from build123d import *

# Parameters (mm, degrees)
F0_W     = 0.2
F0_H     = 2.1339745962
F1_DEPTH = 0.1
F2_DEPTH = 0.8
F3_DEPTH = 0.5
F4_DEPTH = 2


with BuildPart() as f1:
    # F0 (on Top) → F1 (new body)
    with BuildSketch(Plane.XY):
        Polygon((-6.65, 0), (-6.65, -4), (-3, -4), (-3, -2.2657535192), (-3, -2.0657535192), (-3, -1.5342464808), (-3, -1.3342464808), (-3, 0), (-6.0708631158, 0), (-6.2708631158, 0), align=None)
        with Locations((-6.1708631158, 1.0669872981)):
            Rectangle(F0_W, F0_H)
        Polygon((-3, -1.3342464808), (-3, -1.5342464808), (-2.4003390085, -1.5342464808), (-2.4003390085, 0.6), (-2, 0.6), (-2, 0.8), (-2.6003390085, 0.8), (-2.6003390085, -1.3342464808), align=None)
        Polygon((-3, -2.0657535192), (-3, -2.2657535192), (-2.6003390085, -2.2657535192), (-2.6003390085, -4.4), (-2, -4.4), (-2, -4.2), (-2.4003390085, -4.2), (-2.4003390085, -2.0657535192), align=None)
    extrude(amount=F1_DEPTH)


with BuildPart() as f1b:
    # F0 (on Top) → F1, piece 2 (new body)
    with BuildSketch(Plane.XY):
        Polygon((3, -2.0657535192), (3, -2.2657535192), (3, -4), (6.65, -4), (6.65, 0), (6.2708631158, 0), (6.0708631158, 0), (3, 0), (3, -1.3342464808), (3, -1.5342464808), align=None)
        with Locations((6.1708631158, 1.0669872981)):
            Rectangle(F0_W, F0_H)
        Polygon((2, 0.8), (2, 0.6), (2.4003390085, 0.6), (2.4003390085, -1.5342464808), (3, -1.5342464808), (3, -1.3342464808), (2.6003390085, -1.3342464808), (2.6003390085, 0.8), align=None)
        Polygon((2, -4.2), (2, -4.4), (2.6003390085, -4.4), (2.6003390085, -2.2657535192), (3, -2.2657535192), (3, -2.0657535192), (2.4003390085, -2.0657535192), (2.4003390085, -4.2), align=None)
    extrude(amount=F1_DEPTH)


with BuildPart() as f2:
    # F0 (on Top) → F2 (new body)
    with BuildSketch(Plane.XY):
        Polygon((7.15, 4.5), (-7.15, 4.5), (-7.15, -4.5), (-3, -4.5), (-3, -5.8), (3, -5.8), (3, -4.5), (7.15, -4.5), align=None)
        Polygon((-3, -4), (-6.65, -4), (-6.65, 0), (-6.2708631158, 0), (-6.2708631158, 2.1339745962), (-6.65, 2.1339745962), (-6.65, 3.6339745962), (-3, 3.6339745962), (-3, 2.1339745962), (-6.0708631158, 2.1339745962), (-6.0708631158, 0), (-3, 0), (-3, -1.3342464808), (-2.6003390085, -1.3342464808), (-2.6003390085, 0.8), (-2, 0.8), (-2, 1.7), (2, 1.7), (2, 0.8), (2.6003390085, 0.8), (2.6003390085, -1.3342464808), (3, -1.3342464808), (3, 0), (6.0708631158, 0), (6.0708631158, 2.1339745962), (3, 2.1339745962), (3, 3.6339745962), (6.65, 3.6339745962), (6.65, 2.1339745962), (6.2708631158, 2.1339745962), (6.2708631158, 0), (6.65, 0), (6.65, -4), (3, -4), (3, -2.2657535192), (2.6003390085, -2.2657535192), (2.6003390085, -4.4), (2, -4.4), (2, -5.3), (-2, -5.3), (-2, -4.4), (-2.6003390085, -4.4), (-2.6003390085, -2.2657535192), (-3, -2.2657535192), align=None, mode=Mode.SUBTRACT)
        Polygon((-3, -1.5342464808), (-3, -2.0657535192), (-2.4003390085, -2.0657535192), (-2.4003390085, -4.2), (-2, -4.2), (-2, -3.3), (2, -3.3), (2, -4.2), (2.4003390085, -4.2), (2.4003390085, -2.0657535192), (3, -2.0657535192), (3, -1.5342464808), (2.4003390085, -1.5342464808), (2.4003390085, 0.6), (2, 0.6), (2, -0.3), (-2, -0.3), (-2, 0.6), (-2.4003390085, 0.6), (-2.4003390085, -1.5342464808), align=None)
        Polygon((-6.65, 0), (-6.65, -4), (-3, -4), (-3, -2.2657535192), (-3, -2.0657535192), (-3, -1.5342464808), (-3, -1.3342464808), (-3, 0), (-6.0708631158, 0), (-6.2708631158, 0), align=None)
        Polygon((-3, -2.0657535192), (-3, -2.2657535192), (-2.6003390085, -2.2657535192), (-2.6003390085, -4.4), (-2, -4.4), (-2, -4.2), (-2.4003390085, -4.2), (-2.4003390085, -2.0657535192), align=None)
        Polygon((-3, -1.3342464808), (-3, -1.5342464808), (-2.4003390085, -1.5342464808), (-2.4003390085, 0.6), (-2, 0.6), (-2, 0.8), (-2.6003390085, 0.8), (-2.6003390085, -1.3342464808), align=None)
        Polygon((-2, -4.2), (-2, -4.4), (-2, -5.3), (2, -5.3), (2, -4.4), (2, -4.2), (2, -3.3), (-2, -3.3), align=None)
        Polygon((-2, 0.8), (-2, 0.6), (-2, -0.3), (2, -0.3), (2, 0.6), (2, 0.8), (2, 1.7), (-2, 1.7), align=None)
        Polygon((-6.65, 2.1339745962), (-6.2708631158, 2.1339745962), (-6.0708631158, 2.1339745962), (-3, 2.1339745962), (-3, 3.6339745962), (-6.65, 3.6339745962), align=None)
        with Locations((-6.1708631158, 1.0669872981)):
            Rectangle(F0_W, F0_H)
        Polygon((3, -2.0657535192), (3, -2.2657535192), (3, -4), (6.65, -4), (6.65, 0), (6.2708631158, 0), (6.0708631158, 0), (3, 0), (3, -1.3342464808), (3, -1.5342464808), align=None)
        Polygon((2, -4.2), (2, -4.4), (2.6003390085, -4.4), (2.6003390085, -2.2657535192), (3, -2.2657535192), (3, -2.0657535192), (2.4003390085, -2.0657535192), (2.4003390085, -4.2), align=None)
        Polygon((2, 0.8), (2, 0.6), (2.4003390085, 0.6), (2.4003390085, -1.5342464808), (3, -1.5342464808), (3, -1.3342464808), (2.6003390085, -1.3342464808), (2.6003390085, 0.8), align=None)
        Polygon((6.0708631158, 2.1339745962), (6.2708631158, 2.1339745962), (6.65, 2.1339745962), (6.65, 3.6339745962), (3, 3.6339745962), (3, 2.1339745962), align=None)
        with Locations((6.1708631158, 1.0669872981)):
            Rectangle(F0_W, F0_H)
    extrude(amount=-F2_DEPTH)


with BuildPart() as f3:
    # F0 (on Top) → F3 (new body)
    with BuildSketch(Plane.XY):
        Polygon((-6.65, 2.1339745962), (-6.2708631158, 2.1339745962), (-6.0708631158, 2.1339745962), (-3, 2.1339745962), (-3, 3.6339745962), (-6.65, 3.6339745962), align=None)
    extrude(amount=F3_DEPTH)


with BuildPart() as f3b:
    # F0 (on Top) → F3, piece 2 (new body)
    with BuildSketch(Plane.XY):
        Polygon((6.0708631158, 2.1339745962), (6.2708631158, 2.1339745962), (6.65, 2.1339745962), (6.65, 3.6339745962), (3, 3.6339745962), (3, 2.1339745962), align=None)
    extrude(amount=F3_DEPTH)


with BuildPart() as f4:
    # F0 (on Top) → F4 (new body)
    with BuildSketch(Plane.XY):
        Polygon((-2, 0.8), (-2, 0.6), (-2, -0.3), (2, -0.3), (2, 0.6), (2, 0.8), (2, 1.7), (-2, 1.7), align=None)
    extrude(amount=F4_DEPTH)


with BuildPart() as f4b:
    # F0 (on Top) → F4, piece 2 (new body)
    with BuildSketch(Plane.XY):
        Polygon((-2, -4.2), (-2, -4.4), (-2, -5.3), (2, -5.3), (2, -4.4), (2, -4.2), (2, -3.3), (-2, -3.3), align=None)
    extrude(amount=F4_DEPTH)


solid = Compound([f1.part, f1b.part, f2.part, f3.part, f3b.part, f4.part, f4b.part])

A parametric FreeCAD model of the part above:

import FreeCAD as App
import Part
import Sketcher

doc = App.newDocument("Part")
body = doc.addObject("PartDesign::Body", "Body")

sketch1 = body.newObject("Sketcher::SketchObject", "Sketch")
sketch1.AttachmentSupport = (doc.getObject("XY_Plane"), [""])
sketch1.MapMode = "FlatFace"
sketch1.addGeometry([
    Part.LineSegment(App.Vector(-6.65, 0, 0), App.Vector(-6.65, -4, 0)),
    Part.LineSegment(App.Vector(-6.65, -4, 0), App.Vector(-3, -4, 0)),
    Part.LineSegment(App.Vector(-3, -4, 0), App.Vector(-3, -2.27, 0)),
    Part.LineSegment(App.Vector(-3, -2.27, 0), App.Vector(-2.6, -2.27, 0)),
    Part.LineSegment(App.Vector(-2.6, -2.27, 0), App.Vector(-2.6, -4.4, 0)),
    Part.LineSegment(App.Vector(-2.6, -4.4, 0), App.Vector(-2, -4.4, 0)),
    Part.LineSegment(App.Vector(-2, -4.4, 0), App.Vector(-2, -4.2, 0)),
    Part.LineSegment(App.Vector(-2, -4.2, 0), App.Vector(-2.4, -4.2, 0)),
    Part.LineSegment(App.Vector(-2.4, -4.2, 0), App.Vector(-2.4, -2.07, 0)),
    Part.LineSegment(App.Vector(-2.4, -2.07, 0), App.Vector(-3, -2.07, 0)),
    Part.LineSegment(App.Vector(-3, -2.07, 0), App.Vector(-3, -1.53, 0)),
    Part.LineSegment(App.Vector(-3, -1.53, 0), App.Vector(-2.4, -1.53, 0)),
    Part.LineSegment(App.Vector(-2.4, -1.53, 0), App.Vector(-2.4, 0.6, 0)),
    Part.LineSegment(App.Vector(-2.4, 0.6, 0), App.Vector(-2, 0.6, 0)),
    Part.LineSegment(App.Vector(-2, 0.6, 0), App.Vector(-2, 0.8, 0)),
    Part.LineSegment(App.Vector(-2, 0.8, 0), App.Vector(-2.6, 0.8, 0)),
    Part.LineSegment(App.Vector(-2.6, 0.8, 0), App.Vector(-2.6, -1.33, 0)),
    Part.LineSegment(App.Vector(-2.6, -1.33, 0), App.Vector(-3, -1.33, 0)),
    Part.LineSegment(App.Vector(-3, -1.33, 0), App.Vector(-3, 0, 0)),
    Part.LineSegment(App.Vector(-3, 0, 0), App.Vector(-6.07, 0, 0)),
    Part.LineSegment(App.Vector(-6.07, 0, 0), App.Vector(-6.07, 2.13, 0)),
    Part.LineSegment(App.Vector(-6.07, 2.13, 0), App.Vector(-6.27, 2.13, 0)),
    Part.LineSegment(App.Vector(-6.27, 2.13, 0), App.Vector(-6.27, 0, 0)),
    Part.LineSegment(App.Vector(-6.27, 0, 0), App.Vector(-6.65, 0, 0)),
], False)
sketch1.addConstraint([
    Sketcher.Constraint("Coincident", 0, 2, 1, 1),
    Sketcher.Constraint("Coincident", 1, 2, 2, 1),
    Sketcher.Constraint("Coincident", 2, 2, 3, 1),
    Sketcher.Constraint("Coincident", 3, 2, 4, 1),
    Sketcher.Constraint("Coincident", 4, 2, 5, 1),
    Sketcher.Constraint("Coincident", 5, 2, 6, 1),
    Sketcher.Constraint("Coincident", 6, 2, 7, 1),
    Sketcher.Constraint("Coincident", 7, 2, 8, 1),
    Sketcher.Constraint("Coincident", 8, 2, 9, 1),
    Sketcher.Constraint("Coincident", 9, 2, 10, 1),
    Sketcher.Constraint("Coincident", 10, 2, 11, 1),
    Sketcher.Constraint("Coincident", 11, 2, 12, 1),
    Sketcher.Constraint("Coincident", 12, 2, 13, 1),
    Sketcher.Constraint("Coincident", 13, 2, 14, 1),
    Sketcher.Constraint("Coincident", 14, 2, 15, 1),
    Sketcher.Constraint("Coincident", 15, 2, 16, 1),
    Sketcher.Constraint("Coincident", 16, 2, 17, 1),
    Sketcher.Constraint("Coincident", 17, 2, 18, 1),
    Sketcher.Constraint("Coincident", 18, 2, 19, 1),
    Sketcher.Constraint("Coincident", 19, 2, 20, 1),
    Sketcher.Constraint("Coincident", 20, 2, 21, 1),
    Sketcher.Constraint("Coincident", 21, 2, 22, 1),
    Sketcher.Constraint("Coincident", 22, 2, 23, 1),
    Sketcher.Constraint("Coincident", 23, 2, 0, 1),
    Sketcher.Constraint("Vertical", 0),
    Sketcher.Constraint("Horizontal", 1),
    Sketcher.Constraint("Vertical", 2),
    Sketcher.Constraint("Horizontal", 3),
    Sketcher.Constraint("Vertical", 4),
    Sketcher.Constraint("Horizontal", 5),
    Sketcher.Constraint("Vertical", 6),
    Sketcher.Constraint("Horizontal", 7),
    Sketcher.Constraint("Vertical", 8),
    Sketcher.Constraint("Horizontal", 9),
    Sketcher.Constraint("Vertical", 10),
    Sketcher.Constraint("Horizontal", 11),
    Sketcher.Constraint("Vertical", 12),
    Sketcher.Constraint("Horizontal", 13),
    Sketcher.Constraint("Vertical", 14),
    Sketcher.Constraint("Horizontal", 15),
    Sketcher.Constraint("Vertical", 16),
    Sketcher.Constraint("Horizontal", 17),
    Sketcher.Constraint("Vertical", 18),
    Sketcher.Constraint("Horizontal", 19),
    Sketcher.Constraint("Vertical", 20),
    Sketcher.Constraint("Horizontal", 21),
    Sketcher.Constraint("Vertical", 22),
    Sketcher.Constraint("Horizontal", 23),
    Sketcher.Constraint("PointOnObject", 18, 2, -1),
    Sketcher.Constraint("PointOnObject", 22, 2, -1),
    Sketcher.Constraint("Vertical", 2, 2, 9, 2),
    Sketcher.Constraint("Vertical", 8, 2, 11, 2),
    Sketcher.Constraint("Vertical", 6, 2, 13, 2),
    Sketcher.Constraint("Vertical", 4, 2, 15, 2),
    Sketcher.Constraint("Vertical", 10, 2, 17, 2),
    Sketcher.Constraint("Equal", 21, 6),
    Sketcher.Constraint("Equal", 4, 8),
    Sketcher.Constraint("Equal", 8, 12),
    Sketcher.Constraint("Equal", 6, 14),
    Sketcher.Constraint("Equal", 12, 16),
    Sketcher.Constraint("DistanceY", 0, 2, 0, 1, 4.0),
    Sketcher.Constraint("DistanceX", 21, 2, 21, 1, 0.2),
    Sketcher.Constraint("DistanceX", 1, 2, -1, 1, 3.0),
    Sketcher.Constraint("DistanceX", 5, 2, -1, 1, 2.0),
    Sketcher.Constraint("DistanceX", 1, 1, 1, 2, 3.65),
    Sketcher.Constraint("DistanceY", 4, 2, -1, 1, 4.4),
    Sketcher.Constraint("DistanceY", -1, 1, 12, 2, 0.6),
    Sketcher.Constraint("DistanceX", 4, 2, 7, 2, 0.2),
    Sketcher.Constraint("DistanceX", 3, 1, 3, 2, 0.399661),
    Sketcher.Constraint("DistanceX", 19, 2, 19, 1, 3.070863),
    Sketcher.Constraint("DistanceY", 2, 1, 2, 2, 1.734246),
    Sketcher.Constraint("DistanceY", 20, 1, 20, 2, 2.133975),
])
pad1 = body.newObject("PartDesign::Pad", "Pad")
pad1.Profile = sketch1
pad1.Length = 0.1
body2 = doc.addObject("PartDesign::Body", "Body001")

sketch2 = body2.newObject("Sketcher::SketchObject", "Sketch001")
sketch2.AttachmentSupport = (doc.getObject("XY_Plane001"), [""])
sketch2.MapMode = "FlatFace"
sketch2.addGeometry([
    Part.LineSegment(App.Vector(3, -4, 0), App.Vector(6.65, -4, 0)),
    Part.LineSegment(App.Vector(6.65, -4, 0), App.Vector(6.65, 0, 0)),
    Part.LineSegment(App.Vector(6.65, 0, 0), App.Vector(6.27, 0, 0)),
    Part.LineSegment(App.Vector(6.27, 0, 0), App.Vector(6.27, 2.13, 0)),
    Part.LineSegment(App.Vector(6.27, 2.13, 0), App.Vector(6.07, 2.13, 0)),
    Part.LineSegment(App.Vector(6.07, 2.13, 0), App.Vector(6.07, 0, 0)),
    Part.LineSegment(App.Vector(6.07, 0, 0), App.Vector(3, 0, 0)),
    Part.LineSegment(App.Vector(3, 0, 0), App.Vector(3, -1.33, 0)),
    Part.LineSegment(App.Vector(3, -1.33, 0), App.Vector(2.6, -1.33, 0)),
    Part.LineSegment(App.Vector(2.6, -1.33, 0), App.Vector(2.6, 0.8, 0)),
    Part.LineSegment(App.Vector(2.6, 0.8, 0), App.Vector(2, 0.8, 0)),
    Part.LineSegment(App.Vector(2, 0.8, 0), App.Vector(2, 0.6, 0)),
    Part.LineSegment(App.Vector(2, 0.6, 0), App.Vector(2.4, 0.6, 0)),
    Part.LineSegment(App.Vector(2.4, 0.6, 0), App.Vector(2.4, -1.53, 0)),
    Part.LineSegment(App.Vector(2.4, -1.53, 0), App.Vector(3, -1.53, 0)),
    Part.LineSegment(App.Vector(3, -1.53, 0), App.Vector(3, -2.07, 0)),
    Part.LineSegment(App.Vector(3, -2.07, 0), App.Vector(2.4, -2.07, 0)),
    Part.LineSegment(App.Vector(2.4, -2.07, 0), App.Vector(2.4, -4.2, 0)),
    Part.LineSegment(App.Vector(2.4, -4.2, 0), App.Vector(2, -4.2, 0)),
    Part.LineSegment(App.Vector(2, -4.2, 0), App.Vector(2, -4.4, 0)),
    Part.LineSegment(App.Vector(2, -4.4, 0), App.Vector(2.6, -4.4, 0)),
    Part.LineSegment(App.Vector(2.6, -4.4, 0), App.Vector(2.6, -2.27, 0)),
    Part.LineSegment(App.Vector(2.6, -2.27, 0), App.Vector(3, -2.27, 0)),
    Part.LineSegment(App.Vector(3, -2.27, 0), App.Vector(3, -4, 0)),
], False)
sketch2.addConstraint([
    Sketcher.Constraint("Coincident", 0, 2, 1, 1),
    Sketcher.Constraint("Coincident", 1, 2, 2, 1),
    Sketcher.Constraint("Coincident", 2, 2, 3, 1),
    Sketcher.Constraint("Coincident", 3, 2, 4, 1),
    Sketcher.Constraint("Coincident", 4, 2, 5, 1),
    Sketcher.Constraint("Coincident", 5, 2, 6, 1),
    Sketcher.Constraint("Coincident", 6, 2, 7, 1),
    Sketcher.Constraint("Coincident", 7, 2, 8, 1),
    Sketcher.Constraint("Coincident", 8, 2, 9, 1),
    Sketcher.Constraint("Coincident", 9, 2, 10, 1),
    Sketcher.Constraint("Coincident", 10, 2, 11, 1),
    Sketcher.Constraint("Coincident", 11, 2, 12, 1),
    Sketcher.Constraint("Coincident", 12, 2, 13, 1),
    Sketcher.Constraint("Coincident", 13, 2, 14, 1),
    Sketcher.Constraint("Coincident", 14, 2, 15, 1),
    Sketcher.Constraint("Coincident", 15, 2, 16, 1),
    Sketcher.Constraint("Coincident", 16, 2, 17, 1),
    Sketcher.Constraint("Coincident", 17, 2, 18, 1),
    Sketcher.Constraint("Coincident", 18, 2, 19, 1),
    Sketcher.Constraint("Coincident", 19, 2, 20, 1),
    Sketcher.Constraint("Coincident", 20, 2, 21, 1),
    Sketcher.Constraint("Coincident", 21, 2, 22, 1),
    Sketcher.Constraint("Coincident", 22, 2, 23, 1),
    Sketcher.Constraint("Coincident", 23, 2, 0, 1),
    Sketcher.Constraint("Horizontal", 0),
    Sketcher.Constraint("Vertical", 1),
    Sketcher.Constraint("Horizontal", 2),
    Sketcher.Constraint("Vertical", 3),
    Sketcher.Constraint("Horizontal", 4),
    Sketcher.Constraint("Vertical", 5),
    Sketcher.Constraint("Horizontal", 6),
    Sketcher.Constraint("Vertical", 7),
    Sketcher.Constraint("Horizontal", 8),
    Sketcher.Constraint("Vertical", 9),
    Sketcher.Constraint("Horizontal", 10),
    Sketcher.Constraint("Vertical", 11),
    Sketcher.Constraint("Horizontal", 12),
    Sketcher.Constraint("Vertical", 13),
    Sketcher.Constraint("Horizontal", 14),
    Sketcher.Constraint("Vertical", 15),
    Sketcher.Constraint("Horizontal", 16),
    Sketcher.Constraint("Vertical", 17),
    Sketcher.Constraint("Horizontal", 18),
    Sketcher.Constraint("Vertical", 19),
    Sketcher.Constraint("Horizontal", 20),
    Sketcher.Constraint("Vertical", 21),
    Sketcher.Constraint("Horizontal", 22),
    Sketcher.Constraint("Vertical", 23),
    Sketcher.Constraint("PointOnObject", 1, 2, -1),
    Sketcher.Constraint("PointOnObject", 5, 2, -1),
    Sketcher.Constraint("Vertical", 7, 2, 14, 2),
    Sketcher.Constraint("Vertical", 13, 2, 16, 2),
    Sketcher.Constraint("Vertical", 11, 2, 18, 2),
    Sketcher.Constraint("Vertical", 9, 2, 20, 2),
    Sketcher.Constraint("Vertical", 15, 2, 22, 2),
    Sketcher.Constraint("Equal", 4, 11),
    Sketcher.Constraint("Equal", 9, 13),
    Sketcher.Constraint("Equal", 13, 17),
    Sketcher.Constraint("Equal", 11, 19),
    Sketcher.Constraint("Equal", 17, 21),
    Sketcher.Constraint("DistanceY", 1, 1, 1, 2, 4.0),
    Sketcher.Constraint("DistanceX", 4, 2, 4, 1, 0.2),
    Sketcher.Constraint("DistanceX", -1, 1, 6, 2, 3.0),
    Sketcher.Constraint("DistanceX", -1, 1, 10, 2, 2.0),
    Sketcher.Constraint("DistanceX", 0, 1, 0, 2, 3.65),
    Sketcher.Constraint("DistanceY", -1, 1, 9, 2, 0.8),
    Sketcher.Constraint("DistanceY", 17, 2, -1, 1, 4.2),
    Sketcher.Constraint("DistanceX", 12, 2, 9, 2, 0.2),
    Sketcher.Constraint("DistanceX", 8, 2, 8, 1, 0.399661),
    Sketcher.Constraint("DistanceX", 2, 2, 2, 1, 0.379137),
    Sketcher.Constraint("DistanceY", 3, 1, 3, 2, 2.133975),
    Sketcher.Constraint("DistanceY", 7, 2, 7, 1, 1.334246),
])
pad2 = body2.newObject("PartDesign::Pad", "Pad001")
pad2.Profile = sketch2
pad2.Length = 0.1
body3 = doc.addObject("PartDesign::Body", "Body002")

sketch3 = body3.newObject("Sketcher::SketchObject", "Sketch002")
sketch3.AttachmentSupport = (doc.getObject("XY_Plane002"), [""])
sketch3.MapMode = "FlatFace"
sketch3.addGeometry([
    Part.LineSegment(App.Vector(7.2, 4.5, 0), App.Vector(-7.2, 4.5, 0)),
    Part.LineSegment(App.Vector(-7.2, 4.5, 0), App.Vector(-7.2, -4.5, 0)),
    Part.LineSegment(App.Vector(-7.2, -4.5, 0), App.Vector(-3, -4.5, 0)),
    Part.LineSegment(App.Vector(-3, -4.5, 0), App.Vector(-3, -5.8, 0)),
    Part.LineSegment(App.Vector(-3, -5.8, 0), App.Vector(3, -5.8, 0)),
    Part.LineSegment(App.Vector(3, -5.8, 0), App.Vector(3, -4.5, 0)),
    Part.LineSegment(App.Vector(3, -4.5, 0), App.Vector(7.2, -4.5, 0)),
    Part.LineSegment(App.Vector(7.2, -4.5, 0), App.Vector(7.2, 4.5, 0)),
], False)
sketch3.addConstraint([
    Sketcher.Constraint("Coincident", 0, 2, 1, 1),
    Sketcher.Constraint("Coincident", 1, 2, 2, 1),
    Sketcher.Constraint("Coincident", 2, 2, 3, 1),
    Sketcher.Constraint("Coincident", 3, 2, 4, 1),
    Sketcher.Constraint("Coincident", 4, 2, 5, 1),
    Sketcher.Constraint("Coincident", 5, 2, 6, 1),
    Sketcher.Constraint("Coincident", 6, 2, 7, 1),
    Sketcher.Constraint("Coincident", 7, 2, 0, 1),
    Sketcher.Constraint("Horizontal", 0),
    Sketcher.Constraint("Vertical", 1),
    Sketcher.Constraint("Horizontal", 2),
    Sketcher.Constraint("Vertical", 3),
    Sketcher.Constraint("Horizontal", 4),
    Sketcher.Constraint("Vertical", 5),
    Sketcher.Constraint("Horizontal", 6),
    Sketcher.Constraint("Vertical", 7),
    Sketcher.Constraint("Symmetric", 0, 2, 6, 2, -1, 1),
    Sketcher.Constraint("Symmetric", 2, 2, 5, 2, -2),
    Sketcher.Constraint("DistanceX", 4, 1, 4, 2, 6.0),
    Sketcher.Constraint("DistanceY", 1, 2, 1, 1, 9.0),
    Sketcher.Constraint("DistanceX", 0, 2, 0, 1, 14.3),
    Sketcher.Constraint("DistanceY", 3, 2, 3, 1, 1.3),
])
pad3 = body3.newObject("PartDesign::Pad", "Pad002")
pad3.Profile = sketch3
pad3.Length = 0.8
pad3.Reversed = True
body4 = doc.addObject("PartDesign::Body", "Body003")

sketch4 = body4.newObject("Sketcher::SketchObject", "Sketch003")
sketch4.AttachmentSupport = (doc.getObject("XY_Plane003"), [""])
sketch4.MapMode = "FlatFace"
sketch4.addGeometry([
    Part.LineSegment(App.Vector(-6.7, 2.1, 0), App.Vector(-3, 2.1, 0)),
    Part.LineSegment(App.Vector(-3, 2.1, 0), App.Vector(-3, 3.6, 0)),
    Part.LineSegment(App.Vector(-3, 3.6, 0), App.Vector(-6.7, 3.6, 0)),
    Part.LineSegment(App.Vector(-6.7, 3.6, 0), App.Vector(-6.7, 2.1, 0)),
], False)
sketch4.addConstraint([
    Sketcher.Constraint("Coincident", 0, 2, 1, 1),
    Sketcher.Constraint("Coincident", 1, 2, 2, 1),
    Sketcher.Constraint("Coincident", 2, 2, 3, 1),
    Sketcher.Constraint("Coincident", 3, 2, 0, 1),
    Sketcher.Constraint("Horizontal", 0),
    Sketcher.Constraint("Vertical", 1),
    Sketcher.Constraint("Horizontal", 2),
    Sketcher.Constraint("Vertical", 3),
    Sketcher.Constraint("DistanceY", 1, 1, 1, 2, 1.5),
    Sketcher.Constraint("DistanceX", 0, 2, -1, 1, 3.0),
    Sketcher.Constraint("DistanceX", 0, 1, 0, 2, 3.65),
    Sketcher.Constraint("DistanceY", -1, 1, 0, 2, 2.133975),
])
pad4 = body4.newObject("PartDesign::Pad", "Pad003")
pad4.Profile = sketch4
pad4.Length = 0.5
body5 = doc.addObject("PartDesign::Body", "Body004")

sketch5 = body5.newObject("Sketcher::SketchObject", "Sketch004")
sketch5.AttachmentSupport = (doc.getObject("XY_Plane004"), [""])
sketch5.MapMode = "FlatFace"
sketch5.addGeometry([
    Part.LineSegment(App.Vector(6.7, 2.1, 0), App.Vector(6.7, 3.6, 0)),
    Part.LineSegment(App.Vector(6.7, 3.6, 0), App.Vector(3, 3.6, 0)),
    Part.LineSegment(App.Vector(3, 3.6, 0), App.Vector(3, 2.1, 0)),
    Part.LineSegment(App.Vector(3, 2.1, 0), App.Vector(6.7, 2.1, 0)),
], False)
sketch5.addConstraint([
    Sketcher.Constraint("Coincident", 0, 2, 1, 1),
    Sketcher.Constraint("Coincident", 1, 2, 2, 1),
    Sketcher.Constraint("Coincident", 2, 2, 3, 1),
    Sketcher.Constraint("Coincident", 3, 2, 0, 1),
    Sketcher.Constraint("Vertical", 0),
    Sketcher.Constraint("Horizontal", 1),
    Sketcher.Constraint("Vertical", 2),
    Sketcher.Constraint("Horizontal", 3),
    Sketcher.Constraint("DistanceY", 0, 1, 0, 2, 1.5),
    Sketcher.Constraint("DistanceX", -1, 1, 1, 2, 3.0),
    Sketcher.Constraint("DistanceX", 1, 2, 1, 1, 3.65),
    Sketcher.Constraint("DistanceY", -1, 1, 0, 2, 3.633975),
])
pad5 = body5.newObject("PartDesign::Pad", "Pad004")
pad5.Profile = sketch5
pad5.Length = 0.5
body6 = doc.addObject("PartDesign::Body", "Body005")

sketch6 = body6.newObject("Sketcher::SketchObject", "Sketch005")
sketch6.AttachmentSupport = (doc.getObject("XY_Plane005"), [""])
sketch6.MapMode = "FlatFace"
sketch6.addGeometry([
    Part.LineSegment(App.Vector(-2, -0.3, 0), App.Vector(2, -0.3, 0)),
    Part.LineSegment(App.Vector(2, -0.3, 0), App.Vector(2, 1.7, 0)),
    Part.LineSegment(App.Vector(2, 1.7, 0), App.Vector(-2, 1.7, 0)),
    Part.LineSegment(App.Vector(-2, 1.7, 0), App.Vector(-2, -0.3, 0)),
], False)
sketch6.addConstraint([
    Sketcher.Constraint("Coincident", 0, 2, 1, 1),
    Sketcher.Constraint("Coincident", 1, 2, 2, 1),
    Sketcher.Constraint("Coincident", 2, 2, 3, 1),
    Sketcher.Constraint("Coincident", 3, 2, 0, 1),
    Sketcher.Constraint("Horizontal", 0),
    Sketcher.Constraint("Vertical", 1),
    Sketcher.Constraint("Horizontal", 2),
    Sketcher.Constraint("Vertical", 3),
    Sketcher.Constraint("DistanceX", 0, 1, 0, 2, 4.0),
    Sketcher.Constraint("DistanceY", 1, 1, 1, 2, 2.0),
    Sketcher.Constraint("DistanceX", -1, 1, 0, 2, 2.0),
    Sketcher.Constraint("DistanceY", 0, 2, -1, 1, 0.3),
])
pad6 = body6.newObject("PartDesign::Pad", "Pad005")
pad6.Profile = sketch6
pad6.Length = 2
body7 = doc.addObject("PartDesign::Body", "Body006")

sketch7 = body7.newObject("Sketcher::SketchObject", "Sketch006")
sketch7.AttachmentSupport = (doc.getObject("XY_Plane006"), [""])
sketch7.MapMode = "FlatFace"
sketch7.addGeometry([
    Part.LineSegment(App.Vector(-2, -5.3, 0), App.Vector(2, -5.3, 0)),
    Part.LineSegment(App.Vector(2, -5.3, 0), App.Vector(2, -3.3, 0)),
    Part.LineSegment(App.Vector(2, -3.3, 0), App.Vector(-2, -3.3, 0)),
    Part.LineSegment(App.Vector(-2, -3.3, 0), App.Vector(-2, -5.3, 0)),
], False)
sketch7.addConstraint([
    Sketcher.Constraint("Coincident", 0, 2, 1, 1),
    Sketcher.Constraint("Coincident", 1, 2, 2, 1),
    Sketcher.Constraint("Coincident", 2, 2, 3, 1),
    Sketcher.Constraint("Coincident", 3, 2, 0, 1),
    Sketcher.Constraint("Horizontal", 0),
    Sketcher.Constraint("Vertical", 1),
    Sketcher.Constraint("Horizontal", 2),
    Sketcher.Constraint("Vertical", 3),
    Sketcher.Constraint("DistanceX", 0, 1, 0, 2, 4.0),
    Sketcher.Constraint("DistanceY", 1, 1, 1, 2, 2.0),
    Sketcher.Constraint("DistanceX", -1, 1, 0, 2, 2.0),
    Sketcher.Constraint("DistanceY", 0, 2, -1, 1, 5.3),
])
pad7 = body7.newObject("PartDesign::Pad", "Pad006")
pad7.Profile = sketch7
pad7.Length = 2

doc.recompute()
